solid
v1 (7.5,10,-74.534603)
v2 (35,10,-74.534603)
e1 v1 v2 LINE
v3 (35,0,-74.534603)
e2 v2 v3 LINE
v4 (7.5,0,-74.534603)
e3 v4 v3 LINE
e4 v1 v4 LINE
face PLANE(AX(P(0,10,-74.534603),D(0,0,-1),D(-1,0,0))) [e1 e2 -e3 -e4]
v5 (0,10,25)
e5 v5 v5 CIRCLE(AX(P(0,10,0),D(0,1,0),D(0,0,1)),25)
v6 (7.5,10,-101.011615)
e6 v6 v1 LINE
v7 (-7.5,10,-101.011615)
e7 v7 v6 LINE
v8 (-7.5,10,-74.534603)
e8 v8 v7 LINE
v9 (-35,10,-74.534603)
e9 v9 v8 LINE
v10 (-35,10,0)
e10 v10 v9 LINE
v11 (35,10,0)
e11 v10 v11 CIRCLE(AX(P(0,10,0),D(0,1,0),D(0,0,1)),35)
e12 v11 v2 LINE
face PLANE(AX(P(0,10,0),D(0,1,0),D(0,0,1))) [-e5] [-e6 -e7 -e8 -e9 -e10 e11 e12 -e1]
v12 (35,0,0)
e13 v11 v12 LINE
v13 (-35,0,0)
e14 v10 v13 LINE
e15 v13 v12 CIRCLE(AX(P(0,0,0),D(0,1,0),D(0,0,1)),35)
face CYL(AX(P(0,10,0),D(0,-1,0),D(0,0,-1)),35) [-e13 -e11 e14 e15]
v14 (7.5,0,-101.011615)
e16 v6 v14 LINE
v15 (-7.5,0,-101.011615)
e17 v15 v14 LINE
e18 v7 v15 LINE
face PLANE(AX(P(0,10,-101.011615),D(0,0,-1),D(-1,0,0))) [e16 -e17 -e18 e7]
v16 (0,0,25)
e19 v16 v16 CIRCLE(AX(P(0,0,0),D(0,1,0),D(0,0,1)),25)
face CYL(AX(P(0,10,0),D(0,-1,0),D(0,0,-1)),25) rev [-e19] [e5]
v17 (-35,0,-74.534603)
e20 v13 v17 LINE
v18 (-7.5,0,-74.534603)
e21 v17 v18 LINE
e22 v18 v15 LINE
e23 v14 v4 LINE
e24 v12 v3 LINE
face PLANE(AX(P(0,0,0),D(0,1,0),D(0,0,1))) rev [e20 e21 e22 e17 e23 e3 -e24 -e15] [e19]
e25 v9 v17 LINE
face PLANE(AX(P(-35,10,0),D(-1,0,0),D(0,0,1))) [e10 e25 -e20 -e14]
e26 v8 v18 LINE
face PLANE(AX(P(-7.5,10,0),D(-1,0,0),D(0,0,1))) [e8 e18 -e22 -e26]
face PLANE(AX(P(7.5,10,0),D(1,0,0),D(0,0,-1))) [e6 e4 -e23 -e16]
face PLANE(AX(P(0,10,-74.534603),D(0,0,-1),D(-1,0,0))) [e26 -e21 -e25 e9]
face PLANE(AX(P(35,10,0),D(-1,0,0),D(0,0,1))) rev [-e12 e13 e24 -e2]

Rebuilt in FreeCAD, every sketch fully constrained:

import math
import FreeCAD as App
import Part
import Sketcher
from FreeCAD import Vector

doc = App.newDocument("Part")
body = doc.addObject("PartDesign::Body", "Body")

sketch1 = body.newObject("Sketcher::SketchObject", "Sketch")
sketch1.AttachmentSupport = (doc.getObject("XZ_Plane"), [""])
sketch1.MapMode = "FlatFace"
sketch1.addGeometry(Part.LineSegment(Vector(-35, -75, 0), Vector(-35, 0, 0)), False)
sketch1.addGeometry(Part.ArcOfCircle(Part.Circle(Vector(0, 0, 0), Vector(0, 0, 1), 35), math.radians(0), math.radians(180)), False)
sketch1.addGeometry(Part.LineSegment(Vector(35, 0, 0), Vector(35, -75, 0)), False)
sketch1.addGeometry(Part.LineSegment(Vector(35, -75, 0), Vector(8, -75, 0)), False)
sketch1.addGeometry(Part.LineSegment(Vector(8, -75, 0), Vector(8, -101, 0)), False)
sketch1.addGeometry(Part.LineSegment(Vector(8, -101, 0), Vector(-8, -101, 0)), False)
sketch1.addGeometry(Part.LineSegment(Vector(-8, -101, 0), Vector(-8, -75, 0)), False)
sketch1.addGeometry(Part.LineSegment(Vector(-8, -75, 0), Vector(-35, -75, 0)), False)
sketch1.addGeometry(Part.Circle(Vector(0, 0, 0), Vector(0, 0, 1), 25), False)
sketch1.addConstraint(Sketcher.Constraint("Tangent", 0, 2, 1, 2))
sketch1.addConstraint(Sketcher.Constraint("Tangent", 1, 1, 2, 1))
sketch1.addConstraint(Sketcher.Constraint("Coincident", 2, 2, 3, 1))
sketch1.addConstraint(Sketcher.Constraint("Coincident", 3, 2, 4, 1))
sketch1.addConstraint(Sketcher.Constraint("Coincident", 4, 2, 5, 1))
sketch1.addConstraint(Sketcher.Constraint("Coincident", 5, 2, 6, 1))
sketch1.addConstraint(Sketcher.Constraint("Coincident", 6, 2, 7, 1))
sketch1.addConstraint(Sketcher.Constraint("Coincident", 7, 2, 0, 1))
sketch1.addConstraint(Sketcher.Constraint("Vertical", 0))
sketch1.addConstraint(Sketcher.Constraint("Vertical", 2))
sketch1.addConstraint(Sketcher.Constraint("Horizontal", 3))
sketch1.addConstraint(Sketcher.Constraint("Vertical", 4))
sketch1.addConstraint(Sketcher.Constraint("Horizontal", 5))
sketch1.addConstraint(Sketcher.Constraint("Vertical", 6))
sketch1.addConstraint(Sketcher.Constraint("Horizontal", 7))
sketch1.addConstraint(Sketcher.Constraint("Coincident", 1, 3, -1, 1))
sketch1.addConstraint(Sketcher.Constraint("Coincident", 8, 3, -1, 1))
sketch1.addConstraint(Sketcher.Constraint("Symmetric", 3, 2, 6, 2, -2))
sketch1.addConstraint(Sketcher.Constraint("Diameter", 8, 50.0))
sketch1.addConstraint(Sketcher.Constraint("Radius", 1, 35.0))
sketch1.addConstraint(Sketcher.Constraint("DistanceX", 5, 2, 5, 1, 15.0))
sketch1.addConstraint(Sketcher.Constraint("DistanceY", 0, 1, 0, 2, 74.534603))
sketch1.addConstraint(Sketcher.Constraint("DistanceY", 4, 2, 4, 1, 26.477012))
pad1 = body.newObject("PartDesign::Pad", "Pad")
pad1.Profile = sketch1
pad1.Length = 10
pad1.Reversed = True

doc.recompute()
